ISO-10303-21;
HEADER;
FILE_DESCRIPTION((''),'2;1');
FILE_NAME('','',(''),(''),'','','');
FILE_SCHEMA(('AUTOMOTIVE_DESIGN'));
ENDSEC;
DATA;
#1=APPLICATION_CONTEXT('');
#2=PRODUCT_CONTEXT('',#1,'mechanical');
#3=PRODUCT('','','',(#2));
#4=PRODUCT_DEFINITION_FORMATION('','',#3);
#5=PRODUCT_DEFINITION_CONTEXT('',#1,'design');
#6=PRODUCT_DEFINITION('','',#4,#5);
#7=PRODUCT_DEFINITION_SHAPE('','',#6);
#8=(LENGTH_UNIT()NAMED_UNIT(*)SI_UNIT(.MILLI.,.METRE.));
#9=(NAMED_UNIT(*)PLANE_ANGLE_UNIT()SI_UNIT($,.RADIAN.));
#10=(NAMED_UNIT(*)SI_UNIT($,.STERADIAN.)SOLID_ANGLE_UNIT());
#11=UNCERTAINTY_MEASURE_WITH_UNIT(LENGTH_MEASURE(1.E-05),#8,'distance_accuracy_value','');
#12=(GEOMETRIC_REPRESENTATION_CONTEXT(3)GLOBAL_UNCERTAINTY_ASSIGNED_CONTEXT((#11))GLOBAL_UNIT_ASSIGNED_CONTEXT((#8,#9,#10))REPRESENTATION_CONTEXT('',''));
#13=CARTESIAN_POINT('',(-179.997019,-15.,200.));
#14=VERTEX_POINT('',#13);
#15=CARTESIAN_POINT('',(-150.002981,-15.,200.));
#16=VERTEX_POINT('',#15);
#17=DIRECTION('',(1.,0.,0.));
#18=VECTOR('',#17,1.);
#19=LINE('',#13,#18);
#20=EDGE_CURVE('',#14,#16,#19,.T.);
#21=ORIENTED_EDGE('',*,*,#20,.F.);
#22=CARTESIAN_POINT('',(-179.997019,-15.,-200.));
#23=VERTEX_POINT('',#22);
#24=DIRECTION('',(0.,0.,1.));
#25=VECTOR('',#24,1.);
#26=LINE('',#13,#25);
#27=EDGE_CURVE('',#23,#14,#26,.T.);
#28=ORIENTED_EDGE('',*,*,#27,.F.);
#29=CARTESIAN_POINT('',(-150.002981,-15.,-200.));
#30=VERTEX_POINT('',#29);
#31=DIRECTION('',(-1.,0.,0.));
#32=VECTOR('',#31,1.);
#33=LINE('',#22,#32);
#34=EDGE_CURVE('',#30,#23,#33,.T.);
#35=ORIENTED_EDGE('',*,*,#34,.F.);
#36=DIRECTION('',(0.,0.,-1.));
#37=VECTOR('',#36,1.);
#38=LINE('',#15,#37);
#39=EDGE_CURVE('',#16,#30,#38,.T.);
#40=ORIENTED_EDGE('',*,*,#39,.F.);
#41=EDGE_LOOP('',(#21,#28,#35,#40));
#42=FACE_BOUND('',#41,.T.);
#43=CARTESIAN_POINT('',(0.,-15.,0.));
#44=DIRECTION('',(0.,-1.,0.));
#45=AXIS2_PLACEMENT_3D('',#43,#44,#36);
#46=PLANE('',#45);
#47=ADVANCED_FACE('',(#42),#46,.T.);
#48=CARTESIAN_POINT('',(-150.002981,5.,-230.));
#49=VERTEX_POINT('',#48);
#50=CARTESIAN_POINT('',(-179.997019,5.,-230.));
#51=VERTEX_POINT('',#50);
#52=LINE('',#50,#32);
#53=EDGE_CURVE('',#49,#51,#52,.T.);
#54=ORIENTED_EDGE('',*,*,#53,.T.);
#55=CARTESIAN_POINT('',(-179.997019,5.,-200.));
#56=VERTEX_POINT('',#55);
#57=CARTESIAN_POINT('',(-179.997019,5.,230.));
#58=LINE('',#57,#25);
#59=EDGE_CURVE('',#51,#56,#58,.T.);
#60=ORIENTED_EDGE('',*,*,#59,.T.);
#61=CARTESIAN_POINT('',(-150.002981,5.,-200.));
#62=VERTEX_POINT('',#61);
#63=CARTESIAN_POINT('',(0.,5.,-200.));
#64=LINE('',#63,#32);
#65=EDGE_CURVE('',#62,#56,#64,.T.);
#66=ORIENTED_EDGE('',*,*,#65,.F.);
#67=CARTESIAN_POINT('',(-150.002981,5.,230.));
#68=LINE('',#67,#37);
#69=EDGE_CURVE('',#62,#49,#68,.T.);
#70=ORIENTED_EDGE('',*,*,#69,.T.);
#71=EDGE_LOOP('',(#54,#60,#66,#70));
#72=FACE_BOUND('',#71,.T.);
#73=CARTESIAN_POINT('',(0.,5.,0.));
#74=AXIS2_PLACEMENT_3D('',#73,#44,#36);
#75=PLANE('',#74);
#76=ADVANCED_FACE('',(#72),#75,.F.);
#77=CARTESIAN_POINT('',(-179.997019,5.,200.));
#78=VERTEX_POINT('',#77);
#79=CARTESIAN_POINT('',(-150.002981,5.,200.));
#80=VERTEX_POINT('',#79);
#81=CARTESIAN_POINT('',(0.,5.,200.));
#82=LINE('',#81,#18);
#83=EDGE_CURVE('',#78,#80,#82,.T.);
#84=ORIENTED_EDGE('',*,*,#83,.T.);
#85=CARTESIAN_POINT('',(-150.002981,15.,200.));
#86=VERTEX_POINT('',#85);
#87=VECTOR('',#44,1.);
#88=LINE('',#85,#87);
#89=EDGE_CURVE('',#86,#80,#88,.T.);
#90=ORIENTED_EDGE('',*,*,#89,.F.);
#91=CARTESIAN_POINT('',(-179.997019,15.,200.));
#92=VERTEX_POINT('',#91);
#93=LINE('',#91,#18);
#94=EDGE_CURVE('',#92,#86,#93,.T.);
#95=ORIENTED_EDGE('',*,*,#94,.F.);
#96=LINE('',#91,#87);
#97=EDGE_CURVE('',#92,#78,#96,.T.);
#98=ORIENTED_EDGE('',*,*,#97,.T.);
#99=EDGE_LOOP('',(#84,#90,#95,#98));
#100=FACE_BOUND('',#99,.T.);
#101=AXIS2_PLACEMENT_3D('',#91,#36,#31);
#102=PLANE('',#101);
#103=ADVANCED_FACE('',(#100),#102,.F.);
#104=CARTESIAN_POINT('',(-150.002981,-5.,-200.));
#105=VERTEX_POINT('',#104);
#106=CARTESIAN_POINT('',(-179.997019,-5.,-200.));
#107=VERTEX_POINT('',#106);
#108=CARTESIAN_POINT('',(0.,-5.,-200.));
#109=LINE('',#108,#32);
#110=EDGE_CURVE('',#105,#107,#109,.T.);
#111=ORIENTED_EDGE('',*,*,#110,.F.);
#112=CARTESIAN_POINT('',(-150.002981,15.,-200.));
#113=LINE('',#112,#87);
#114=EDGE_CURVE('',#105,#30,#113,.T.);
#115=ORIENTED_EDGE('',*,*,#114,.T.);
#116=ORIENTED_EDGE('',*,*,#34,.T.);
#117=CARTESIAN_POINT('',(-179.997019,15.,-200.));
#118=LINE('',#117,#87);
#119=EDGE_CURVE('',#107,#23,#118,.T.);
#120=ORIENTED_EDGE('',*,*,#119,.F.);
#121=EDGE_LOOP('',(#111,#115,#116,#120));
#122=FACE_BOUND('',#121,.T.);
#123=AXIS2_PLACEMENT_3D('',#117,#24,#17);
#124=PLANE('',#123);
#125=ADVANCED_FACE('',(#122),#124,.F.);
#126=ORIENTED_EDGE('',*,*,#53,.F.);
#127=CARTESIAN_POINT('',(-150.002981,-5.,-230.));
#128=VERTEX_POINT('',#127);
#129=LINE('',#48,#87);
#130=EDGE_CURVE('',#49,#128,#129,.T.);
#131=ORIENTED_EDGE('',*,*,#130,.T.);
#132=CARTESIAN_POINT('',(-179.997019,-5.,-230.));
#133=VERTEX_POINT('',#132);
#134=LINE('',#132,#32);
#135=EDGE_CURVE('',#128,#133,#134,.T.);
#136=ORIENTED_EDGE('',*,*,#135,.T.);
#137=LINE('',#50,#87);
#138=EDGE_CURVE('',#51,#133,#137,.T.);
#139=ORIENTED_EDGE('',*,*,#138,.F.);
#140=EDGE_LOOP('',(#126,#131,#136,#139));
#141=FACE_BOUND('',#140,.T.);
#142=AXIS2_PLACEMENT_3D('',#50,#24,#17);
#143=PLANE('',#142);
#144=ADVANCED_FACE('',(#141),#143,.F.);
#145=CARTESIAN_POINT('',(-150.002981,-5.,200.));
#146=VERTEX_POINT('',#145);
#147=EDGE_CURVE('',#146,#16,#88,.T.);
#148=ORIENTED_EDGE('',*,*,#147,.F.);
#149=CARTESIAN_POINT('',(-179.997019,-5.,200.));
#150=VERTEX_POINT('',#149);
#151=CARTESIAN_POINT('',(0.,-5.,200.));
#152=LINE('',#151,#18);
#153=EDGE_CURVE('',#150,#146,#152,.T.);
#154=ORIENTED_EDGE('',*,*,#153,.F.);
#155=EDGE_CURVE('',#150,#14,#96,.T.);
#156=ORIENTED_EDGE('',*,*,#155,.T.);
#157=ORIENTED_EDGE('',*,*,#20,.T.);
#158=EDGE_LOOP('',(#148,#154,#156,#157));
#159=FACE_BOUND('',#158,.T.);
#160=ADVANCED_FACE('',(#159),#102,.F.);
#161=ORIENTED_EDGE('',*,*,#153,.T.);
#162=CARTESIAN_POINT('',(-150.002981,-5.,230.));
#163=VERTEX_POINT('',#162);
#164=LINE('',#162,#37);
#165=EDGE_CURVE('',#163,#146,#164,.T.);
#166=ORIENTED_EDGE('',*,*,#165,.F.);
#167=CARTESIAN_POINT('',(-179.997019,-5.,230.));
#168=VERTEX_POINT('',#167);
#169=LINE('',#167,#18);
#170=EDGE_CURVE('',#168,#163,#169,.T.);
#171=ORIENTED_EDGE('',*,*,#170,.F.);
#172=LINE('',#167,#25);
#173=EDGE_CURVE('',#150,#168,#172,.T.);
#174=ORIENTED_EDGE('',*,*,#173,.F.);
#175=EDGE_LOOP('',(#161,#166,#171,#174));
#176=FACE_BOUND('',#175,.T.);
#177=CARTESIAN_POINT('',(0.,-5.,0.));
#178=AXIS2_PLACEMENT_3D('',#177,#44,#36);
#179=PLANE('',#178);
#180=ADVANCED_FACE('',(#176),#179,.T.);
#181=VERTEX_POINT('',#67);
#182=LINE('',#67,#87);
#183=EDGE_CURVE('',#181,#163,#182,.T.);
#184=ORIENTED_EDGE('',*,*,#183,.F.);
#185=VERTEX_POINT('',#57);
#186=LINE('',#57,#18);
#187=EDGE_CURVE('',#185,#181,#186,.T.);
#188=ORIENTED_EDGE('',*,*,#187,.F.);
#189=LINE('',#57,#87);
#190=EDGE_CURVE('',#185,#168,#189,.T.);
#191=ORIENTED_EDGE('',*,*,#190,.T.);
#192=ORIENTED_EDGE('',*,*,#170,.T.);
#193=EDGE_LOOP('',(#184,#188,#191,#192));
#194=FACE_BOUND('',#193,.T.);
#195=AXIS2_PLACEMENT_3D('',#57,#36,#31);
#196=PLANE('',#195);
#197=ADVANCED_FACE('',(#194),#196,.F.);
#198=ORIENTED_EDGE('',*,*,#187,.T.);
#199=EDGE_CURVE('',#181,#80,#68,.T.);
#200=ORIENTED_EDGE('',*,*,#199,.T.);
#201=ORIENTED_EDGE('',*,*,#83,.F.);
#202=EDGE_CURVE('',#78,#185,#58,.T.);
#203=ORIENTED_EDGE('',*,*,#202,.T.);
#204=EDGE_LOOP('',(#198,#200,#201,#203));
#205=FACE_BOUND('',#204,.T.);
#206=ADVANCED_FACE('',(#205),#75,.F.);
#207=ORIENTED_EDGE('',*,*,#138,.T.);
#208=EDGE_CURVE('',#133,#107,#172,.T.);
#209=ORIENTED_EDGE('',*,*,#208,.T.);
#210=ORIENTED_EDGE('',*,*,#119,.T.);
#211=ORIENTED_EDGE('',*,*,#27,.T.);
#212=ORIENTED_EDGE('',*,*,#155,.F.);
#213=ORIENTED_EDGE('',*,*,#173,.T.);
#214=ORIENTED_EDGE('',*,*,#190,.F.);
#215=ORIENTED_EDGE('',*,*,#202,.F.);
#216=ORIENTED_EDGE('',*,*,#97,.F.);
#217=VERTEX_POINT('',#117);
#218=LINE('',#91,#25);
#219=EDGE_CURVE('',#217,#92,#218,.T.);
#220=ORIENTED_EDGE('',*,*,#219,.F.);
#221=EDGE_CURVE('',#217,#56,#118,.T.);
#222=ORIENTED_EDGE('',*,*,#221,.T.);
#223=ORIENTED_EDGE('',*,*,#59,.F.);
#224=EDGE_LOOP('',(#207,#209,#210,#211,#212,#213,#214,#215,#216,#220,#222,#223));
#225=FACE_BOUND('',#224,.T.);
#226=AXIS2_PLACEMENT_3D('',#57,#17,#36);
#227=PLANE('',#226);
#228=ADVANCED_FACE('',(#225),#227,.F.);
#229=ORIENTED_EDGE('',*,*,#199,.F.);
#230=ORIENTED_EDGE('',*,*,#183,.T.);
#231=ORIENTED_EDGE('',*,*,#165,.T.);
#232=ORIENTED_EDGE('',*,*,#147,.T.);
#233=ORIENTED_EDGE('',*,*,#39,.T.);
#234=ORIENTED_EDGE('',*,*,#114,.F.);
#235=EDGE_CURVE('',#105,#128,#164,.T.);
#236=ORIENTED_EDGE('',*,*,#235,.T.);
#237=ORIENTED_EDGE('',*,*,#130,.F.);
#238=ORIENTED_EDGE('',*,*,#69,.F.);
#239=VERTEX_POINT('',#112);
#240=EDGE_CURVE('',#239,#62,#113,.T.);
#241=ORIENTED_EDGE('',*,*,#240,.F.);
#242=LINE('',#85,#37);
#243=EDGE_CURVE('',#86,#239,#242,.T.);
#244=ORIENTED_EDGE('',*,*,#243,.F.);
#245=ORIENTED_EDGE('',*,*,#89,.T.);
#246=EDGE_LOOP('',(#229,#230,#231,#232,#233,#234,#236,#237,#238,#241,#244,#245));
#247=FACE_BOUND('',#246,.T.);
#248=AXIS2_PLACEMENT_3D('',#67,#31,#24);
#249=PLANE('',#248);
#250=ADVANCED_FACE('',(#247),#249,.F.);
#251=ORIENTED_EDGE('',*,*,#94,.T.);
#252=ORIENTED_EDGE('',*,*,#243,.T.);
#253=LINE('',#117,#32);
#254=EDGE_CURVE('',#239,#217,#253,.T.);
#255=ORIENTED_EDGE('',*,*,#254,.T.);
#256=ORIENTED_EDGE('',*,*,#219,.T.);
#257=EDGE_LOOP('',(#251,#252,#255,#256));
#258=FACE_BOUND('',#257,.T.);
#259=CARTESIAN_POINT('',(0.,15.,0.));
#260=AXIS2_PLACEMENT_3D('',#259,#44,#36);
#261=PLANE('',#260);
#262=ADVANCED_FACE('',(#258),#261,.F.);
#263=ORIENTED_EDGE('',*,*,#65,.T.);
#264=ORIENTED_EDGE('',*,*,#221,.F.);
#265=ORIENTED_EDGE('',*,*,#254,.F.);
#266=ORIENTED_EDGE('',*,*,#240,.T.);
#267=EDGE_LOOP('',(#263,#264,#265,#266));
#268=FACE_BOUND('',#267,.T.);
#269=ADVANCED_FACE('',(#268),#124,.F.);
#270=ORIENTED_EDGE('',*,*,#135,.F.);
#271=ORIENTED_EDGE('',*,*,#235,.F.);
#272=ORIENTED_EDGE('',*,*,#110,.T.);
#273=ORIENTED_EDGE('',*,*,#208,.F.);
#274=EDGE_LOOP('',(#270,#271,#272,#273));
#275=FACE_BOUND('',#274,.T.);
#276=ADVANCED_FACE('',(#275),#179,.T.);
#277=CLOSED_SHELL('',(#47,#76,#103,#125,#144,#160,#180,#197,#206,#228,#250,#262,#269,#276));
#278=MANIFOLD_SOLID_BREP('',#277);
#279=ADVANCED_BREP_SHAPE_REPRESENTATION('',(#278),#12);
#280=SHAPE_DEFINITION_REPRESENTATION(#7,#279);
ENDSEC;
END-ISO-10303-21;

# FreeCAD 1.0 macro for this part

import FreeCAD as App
import Part
import Sketcher

doc = App.newDocument("Part")
body = doc.addObject("PartDesign::Body", "Body")

# Sketch on XZ plane
sketch1 = body.newObject("Sketcher::SketchObject", "Sketch")
sketch1.AttachmentSupport = (doc.getObject("XZ_Plane"), [""])
sketch1.MapMode = "FlatFace"
sketch1.addGeometry([
    Part.LineSegment(App.Vector(-179.997019, -230, 0), App.Vector(-179.997019, 230, 0)),
    Part.LineSegment(App.Vector(-179.997019, 230, 0), App.Vector(-150.002981, 230, 0)),
    Part.LineSegment(App.Vector(-150.002981, 230, 0), App.Vector(-150.002981, -230, 0)),
    Part.LineSegment(App.Vector(-150.002981, -230, 0), App.Vector(-179.997019, -230, 0)),
], False)
sketch1.addConstraint([
    Sketcher.Constraint("Coincident", 0, 2, 1, 1),
    Sketcher.Constraint("Coincident", 1, 2, 2, 1),
    Sketcher.Constraint("Coincident", 2, 2, 3, 1),
    Sketcher.Constraint("Coincident", 3, 2, 0, 1),
    Sketcher.Constraint("Vertical", 0),
    Sketcher.Constraint("Horizontal", 1),
    Sketcher.Constraint("Vertical", 2),
    Sketcher.Constraint("Horizontal", 3),
    Sketcher.Constraint("DistanceY", 0, 1, 0, 2, 460.0),
    Sketcher.Constraint("DistanceY", -1, 1, 0, 2, 230.0),
    Sketcher.Constraint("DistanceX", 1, 1, 1, 2, 29.994038),
    Sketcher.Constraint("DistanceX", 0, 2, -1, 1, 179.997019),
])
pad1 = body.newObject("PartDesign::Pad", "Pad")
pad1.Profile = sketch1
pad1.Length = 10
pad1.Midplane = True

# Sketch on XZ plane
sketch2 = body.newObject("Sketcher::SketchObject", "Sketch001")
sketch2.AttachmentSupport = (doc.getObject("XZ_Plane"), [""])
sketch2.MapMode = "FlatFace"
sketch2.addGeometry([
    Part.LineSegment(App.Vector(-179.997019, -200, 0), App.Vector(-179.997019, 200, 0)),
    Part.LineSegment(App.Vector(-179.997019, 200, 0), App.Vector(-150.002981, 200, 0)),
    Part.LineSegment(App.Vector(-150.002981, 200, 0), App.Vector(-150.002981, -200, 0)),
    Part.LineSegment(App.Vector(-150.002981, -200, 0), App.Vector(-179.997019, -200, 0)),
], False)
sketch2.addConstraint([
    Sketcher.Constraint("Coincident", 0, 2, 1, 1),
    Sketcher.Constraint("Coincident", 1, 2, 2, 1),
    Sketcher.Constraint("Coincident", 2, 2, 3, 1),
    Sketcher.Constraint("Coincident", 3, 2, 0, 1),
    Sketcher.Constraint("Vertical", 0),
    Sketcher.Constraint("Horizontal", 1),
    Sketcher.Constraint("Vertical", 2),
    Sketcher.Constraint("Horizontal", 3),
    Sketcher.Constraint("DistanceY", 0, 1, 0, 2, 400.0),
    Sketcher.Constraint("DistanceY", -1, 1, 0, 2, 200.0),
    Sketcher.Constraint("DistanceX", 1, 1, 1, 2, 29.994038),
    Sketcher.Constraint("DistanceX", 0, 2, -1, 1, 179.997019),
])
pad2 = body.newObject("PartDesign::Pad", "Pad001")
pad2.Profile = sketch2
pad2.Length = 30
pad2.Midplane = True

doc.recompute()
